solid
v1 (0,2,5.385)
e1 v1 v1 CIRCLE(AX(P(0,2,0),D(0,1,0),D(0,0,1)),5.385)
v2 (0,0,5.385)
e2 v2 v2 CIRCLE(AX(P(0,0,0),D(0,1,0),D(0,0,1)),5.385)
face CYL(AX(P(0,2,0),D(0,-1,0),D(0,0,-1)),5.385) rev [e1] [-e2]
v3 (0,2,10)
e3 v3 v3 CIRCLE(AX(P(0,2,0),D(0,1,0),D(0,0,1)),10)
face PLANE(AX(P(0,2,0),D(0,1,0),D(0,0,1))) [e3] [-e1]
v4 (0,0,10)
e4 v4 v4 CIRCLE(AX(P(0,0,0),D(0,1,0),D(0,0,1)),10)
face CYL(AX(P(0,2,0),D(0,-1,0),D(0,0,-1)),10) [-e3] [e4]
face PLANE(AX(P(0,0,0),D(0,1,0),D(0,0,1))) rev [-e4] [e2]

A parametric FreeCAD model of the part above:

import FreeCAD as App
import Part
import Sketcher
from FreeCAD import Vector

doc = App.newDocument("Part")
body = doc.addObject("PartDesign::Body", "Body")

# Sketch on XZ plane
sketch1 = body.newObject("Sketcher::SketchObject", "Sketch")
sketch1.AttachmentSupport = (doc.getObject("XZ_Plane"), [""])
sketch1.MapMode = "FlatFace"
sketch1.addGeometry([
    Part.Circle(Vector(0, 0, 0), Vector(0, 0, 1), 10),
    Part.Circle(Vector(0, 0, 0), Vector(0, 0, 1), 5),
], False)
sketch1.addConstraint([
    Sketcher.Constraint("Coincident", 0, 3, -1, 1),
    Sketcher.Constraint("Coincident", 1, 3, -1, 1),
    Sketcher.Constraint("Diameter", 0, 20.0),
    Sketcher.Constraint("Diameter", 1, 10.77),
])
pad1 = body.newObject("PartDesign::Pad", "Pad")
pad1.Profile = sketch1
pad1.Length = 2
pad1.Reversed = True

doc.recompute()
